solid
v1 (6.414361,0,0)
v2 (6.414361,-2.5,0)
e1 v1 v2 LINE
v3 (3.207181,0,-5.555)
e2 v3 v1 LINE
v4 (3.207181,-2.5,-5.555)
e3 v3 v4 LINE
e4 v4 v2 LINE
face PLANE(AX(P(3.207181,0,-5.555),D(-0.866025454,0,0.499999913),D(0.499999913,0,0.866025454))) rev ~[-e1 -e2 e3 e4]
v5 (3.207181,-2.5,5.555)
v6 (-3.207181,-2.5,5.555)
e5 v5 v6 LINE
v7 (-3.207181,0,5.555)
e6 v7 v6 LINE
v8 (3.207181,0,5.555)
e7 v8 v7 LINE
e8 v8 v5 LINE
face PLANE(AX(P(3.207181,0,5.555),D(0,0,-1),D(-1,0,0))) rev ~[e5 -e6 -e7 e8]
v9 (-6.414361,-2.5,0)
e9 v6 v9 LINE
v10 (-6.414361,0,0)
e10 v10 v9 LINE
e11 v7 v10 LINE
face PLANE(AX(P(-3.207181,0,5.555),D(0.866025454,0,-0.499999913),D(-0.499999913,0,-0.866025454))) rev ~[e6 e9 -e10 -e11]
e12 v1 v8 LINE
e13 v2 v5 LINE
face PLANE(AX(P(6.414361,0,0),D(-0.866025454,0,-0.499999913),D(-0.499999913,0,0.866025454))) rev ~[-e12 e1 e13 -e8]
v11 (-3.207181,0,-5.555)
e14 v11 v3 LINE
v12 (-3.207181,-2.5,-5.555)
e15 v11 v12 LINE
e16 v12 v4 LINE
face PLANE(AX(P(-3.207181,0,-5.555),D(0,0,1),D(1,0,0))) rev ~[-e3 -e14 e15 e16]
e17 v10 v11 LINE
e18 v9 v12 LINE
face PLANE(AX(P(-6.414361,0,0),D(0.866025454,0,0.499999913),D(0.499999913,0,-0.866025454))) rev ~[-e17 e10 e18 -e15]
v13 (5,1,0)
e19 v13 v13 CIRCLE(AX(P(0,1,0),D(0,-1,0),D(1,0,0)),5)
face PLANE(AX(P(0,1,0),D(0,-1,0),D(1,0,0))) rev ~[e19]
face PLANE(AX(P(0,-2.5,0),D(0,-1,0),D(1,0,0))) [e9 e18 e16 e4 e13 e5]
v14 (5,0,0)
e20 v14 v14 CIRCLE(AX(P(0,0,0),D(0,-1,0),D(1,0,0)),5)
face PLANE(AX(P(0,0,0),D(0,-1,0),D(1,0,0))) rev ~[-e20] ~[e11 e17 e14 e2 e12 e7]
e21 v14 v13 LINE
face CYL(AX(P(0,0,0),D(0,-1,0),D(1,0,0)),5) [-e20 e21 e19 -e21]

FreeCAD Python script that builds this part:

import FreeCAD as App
import Part
import Sketcher

V = App.Vector
Q = App.Units.Quantity


def add_polygon(sketch, points):
    """Adds a closed chain of lines whose ends are joined by coincident constraints."""
    first, n = sketch.GeometryCount, len(points)
    for a, b in zip(points, points[1:] + points[:1]):
        sketch.addGeometry(Part.LineSegment(App.Vector(*a, 0), App.Vector(*b, 0)), False)
    for i in range(n):
        sketch.addConstraint(Sketcher.Constraint("Coincident", first + i, 2, first + (i + 1) % n, 1))

doc = App.newDocument("Part")
body = doc.addObject("PartDesign::Body", "Body")

# Sketch on XZ plane
sketch1 = body.newObject("Sketcher::SketchObject", "Sketch")
sketch1.AttachmentSupport = (doc.getObject("XZ_Plane"), [""])
sketch1.MapMode = "FlatFace"
add_polygon(sketch1, [(3.207181, 5.555), (-3.207181, 5.555), (-6.414361, 0), (-3.207181, -5.555), (3.207181, -5.555), (6.414361, 0)])  # lines 0-5
sketch1.addConstraint([
    Sketcher.Constraint("Horizontal", 0),
    Sketcher.Constraint("Horizontal", 3),
    Sketcher.Constraint("Symmetric", 0, 2, 3, 2, -1, 1),
    Sketcher.Constraint("Symmetric", 1, 2, 4, 2, -1, 1),
    Sketcher.Constraint("PointOnObject", 1, 2, -1),
    Sketcher.Constraint("Parallel", 2, 5),
    Sketcher.Constraint("Vertical", 0, 2, 2, 2),
    Sketcher.Constraint("Angle", 1, Q("-119.999994 deg")),
    Sketcher.Constraint("DistanceY", 2, 2, 0, 2, Q("11.11 mm")),
    Sketcher.Constraint("DistanceX", 0, 2, 0, 1, Q("6.414362 mm")),
])
pad1 = body.newObject("PartDesign::Pad", "Pad")
pad1.Profile = sketch1
pad1.Length = 2.5

# Sketch on XZ plane
sketch2 = body.newObject("Sketcher::SketchObject", "Sketch001")
sketch2.AttachmentSupport = (doc.getObject("XZ_Plane"), [""])
sketch2.MapMode = "FlatFace"
sketch2.addGeometry(Part.Circle(V(0, 0, 0), V(0, 0, 1), 5), False)
sketch2.addConstraint([
    Sketcher.Constraint("Coincident", 0, 3, -1, 1),
    Sketcher.Constraint("Diameter", 0, Q("10 mm")),
])
pad2 = body.newObject("PartDesign::Pad", "Pad001")
pad2.Profile = sketch2
pad2.Length = 1
pad2.Reversed = True

doc.recompute()
